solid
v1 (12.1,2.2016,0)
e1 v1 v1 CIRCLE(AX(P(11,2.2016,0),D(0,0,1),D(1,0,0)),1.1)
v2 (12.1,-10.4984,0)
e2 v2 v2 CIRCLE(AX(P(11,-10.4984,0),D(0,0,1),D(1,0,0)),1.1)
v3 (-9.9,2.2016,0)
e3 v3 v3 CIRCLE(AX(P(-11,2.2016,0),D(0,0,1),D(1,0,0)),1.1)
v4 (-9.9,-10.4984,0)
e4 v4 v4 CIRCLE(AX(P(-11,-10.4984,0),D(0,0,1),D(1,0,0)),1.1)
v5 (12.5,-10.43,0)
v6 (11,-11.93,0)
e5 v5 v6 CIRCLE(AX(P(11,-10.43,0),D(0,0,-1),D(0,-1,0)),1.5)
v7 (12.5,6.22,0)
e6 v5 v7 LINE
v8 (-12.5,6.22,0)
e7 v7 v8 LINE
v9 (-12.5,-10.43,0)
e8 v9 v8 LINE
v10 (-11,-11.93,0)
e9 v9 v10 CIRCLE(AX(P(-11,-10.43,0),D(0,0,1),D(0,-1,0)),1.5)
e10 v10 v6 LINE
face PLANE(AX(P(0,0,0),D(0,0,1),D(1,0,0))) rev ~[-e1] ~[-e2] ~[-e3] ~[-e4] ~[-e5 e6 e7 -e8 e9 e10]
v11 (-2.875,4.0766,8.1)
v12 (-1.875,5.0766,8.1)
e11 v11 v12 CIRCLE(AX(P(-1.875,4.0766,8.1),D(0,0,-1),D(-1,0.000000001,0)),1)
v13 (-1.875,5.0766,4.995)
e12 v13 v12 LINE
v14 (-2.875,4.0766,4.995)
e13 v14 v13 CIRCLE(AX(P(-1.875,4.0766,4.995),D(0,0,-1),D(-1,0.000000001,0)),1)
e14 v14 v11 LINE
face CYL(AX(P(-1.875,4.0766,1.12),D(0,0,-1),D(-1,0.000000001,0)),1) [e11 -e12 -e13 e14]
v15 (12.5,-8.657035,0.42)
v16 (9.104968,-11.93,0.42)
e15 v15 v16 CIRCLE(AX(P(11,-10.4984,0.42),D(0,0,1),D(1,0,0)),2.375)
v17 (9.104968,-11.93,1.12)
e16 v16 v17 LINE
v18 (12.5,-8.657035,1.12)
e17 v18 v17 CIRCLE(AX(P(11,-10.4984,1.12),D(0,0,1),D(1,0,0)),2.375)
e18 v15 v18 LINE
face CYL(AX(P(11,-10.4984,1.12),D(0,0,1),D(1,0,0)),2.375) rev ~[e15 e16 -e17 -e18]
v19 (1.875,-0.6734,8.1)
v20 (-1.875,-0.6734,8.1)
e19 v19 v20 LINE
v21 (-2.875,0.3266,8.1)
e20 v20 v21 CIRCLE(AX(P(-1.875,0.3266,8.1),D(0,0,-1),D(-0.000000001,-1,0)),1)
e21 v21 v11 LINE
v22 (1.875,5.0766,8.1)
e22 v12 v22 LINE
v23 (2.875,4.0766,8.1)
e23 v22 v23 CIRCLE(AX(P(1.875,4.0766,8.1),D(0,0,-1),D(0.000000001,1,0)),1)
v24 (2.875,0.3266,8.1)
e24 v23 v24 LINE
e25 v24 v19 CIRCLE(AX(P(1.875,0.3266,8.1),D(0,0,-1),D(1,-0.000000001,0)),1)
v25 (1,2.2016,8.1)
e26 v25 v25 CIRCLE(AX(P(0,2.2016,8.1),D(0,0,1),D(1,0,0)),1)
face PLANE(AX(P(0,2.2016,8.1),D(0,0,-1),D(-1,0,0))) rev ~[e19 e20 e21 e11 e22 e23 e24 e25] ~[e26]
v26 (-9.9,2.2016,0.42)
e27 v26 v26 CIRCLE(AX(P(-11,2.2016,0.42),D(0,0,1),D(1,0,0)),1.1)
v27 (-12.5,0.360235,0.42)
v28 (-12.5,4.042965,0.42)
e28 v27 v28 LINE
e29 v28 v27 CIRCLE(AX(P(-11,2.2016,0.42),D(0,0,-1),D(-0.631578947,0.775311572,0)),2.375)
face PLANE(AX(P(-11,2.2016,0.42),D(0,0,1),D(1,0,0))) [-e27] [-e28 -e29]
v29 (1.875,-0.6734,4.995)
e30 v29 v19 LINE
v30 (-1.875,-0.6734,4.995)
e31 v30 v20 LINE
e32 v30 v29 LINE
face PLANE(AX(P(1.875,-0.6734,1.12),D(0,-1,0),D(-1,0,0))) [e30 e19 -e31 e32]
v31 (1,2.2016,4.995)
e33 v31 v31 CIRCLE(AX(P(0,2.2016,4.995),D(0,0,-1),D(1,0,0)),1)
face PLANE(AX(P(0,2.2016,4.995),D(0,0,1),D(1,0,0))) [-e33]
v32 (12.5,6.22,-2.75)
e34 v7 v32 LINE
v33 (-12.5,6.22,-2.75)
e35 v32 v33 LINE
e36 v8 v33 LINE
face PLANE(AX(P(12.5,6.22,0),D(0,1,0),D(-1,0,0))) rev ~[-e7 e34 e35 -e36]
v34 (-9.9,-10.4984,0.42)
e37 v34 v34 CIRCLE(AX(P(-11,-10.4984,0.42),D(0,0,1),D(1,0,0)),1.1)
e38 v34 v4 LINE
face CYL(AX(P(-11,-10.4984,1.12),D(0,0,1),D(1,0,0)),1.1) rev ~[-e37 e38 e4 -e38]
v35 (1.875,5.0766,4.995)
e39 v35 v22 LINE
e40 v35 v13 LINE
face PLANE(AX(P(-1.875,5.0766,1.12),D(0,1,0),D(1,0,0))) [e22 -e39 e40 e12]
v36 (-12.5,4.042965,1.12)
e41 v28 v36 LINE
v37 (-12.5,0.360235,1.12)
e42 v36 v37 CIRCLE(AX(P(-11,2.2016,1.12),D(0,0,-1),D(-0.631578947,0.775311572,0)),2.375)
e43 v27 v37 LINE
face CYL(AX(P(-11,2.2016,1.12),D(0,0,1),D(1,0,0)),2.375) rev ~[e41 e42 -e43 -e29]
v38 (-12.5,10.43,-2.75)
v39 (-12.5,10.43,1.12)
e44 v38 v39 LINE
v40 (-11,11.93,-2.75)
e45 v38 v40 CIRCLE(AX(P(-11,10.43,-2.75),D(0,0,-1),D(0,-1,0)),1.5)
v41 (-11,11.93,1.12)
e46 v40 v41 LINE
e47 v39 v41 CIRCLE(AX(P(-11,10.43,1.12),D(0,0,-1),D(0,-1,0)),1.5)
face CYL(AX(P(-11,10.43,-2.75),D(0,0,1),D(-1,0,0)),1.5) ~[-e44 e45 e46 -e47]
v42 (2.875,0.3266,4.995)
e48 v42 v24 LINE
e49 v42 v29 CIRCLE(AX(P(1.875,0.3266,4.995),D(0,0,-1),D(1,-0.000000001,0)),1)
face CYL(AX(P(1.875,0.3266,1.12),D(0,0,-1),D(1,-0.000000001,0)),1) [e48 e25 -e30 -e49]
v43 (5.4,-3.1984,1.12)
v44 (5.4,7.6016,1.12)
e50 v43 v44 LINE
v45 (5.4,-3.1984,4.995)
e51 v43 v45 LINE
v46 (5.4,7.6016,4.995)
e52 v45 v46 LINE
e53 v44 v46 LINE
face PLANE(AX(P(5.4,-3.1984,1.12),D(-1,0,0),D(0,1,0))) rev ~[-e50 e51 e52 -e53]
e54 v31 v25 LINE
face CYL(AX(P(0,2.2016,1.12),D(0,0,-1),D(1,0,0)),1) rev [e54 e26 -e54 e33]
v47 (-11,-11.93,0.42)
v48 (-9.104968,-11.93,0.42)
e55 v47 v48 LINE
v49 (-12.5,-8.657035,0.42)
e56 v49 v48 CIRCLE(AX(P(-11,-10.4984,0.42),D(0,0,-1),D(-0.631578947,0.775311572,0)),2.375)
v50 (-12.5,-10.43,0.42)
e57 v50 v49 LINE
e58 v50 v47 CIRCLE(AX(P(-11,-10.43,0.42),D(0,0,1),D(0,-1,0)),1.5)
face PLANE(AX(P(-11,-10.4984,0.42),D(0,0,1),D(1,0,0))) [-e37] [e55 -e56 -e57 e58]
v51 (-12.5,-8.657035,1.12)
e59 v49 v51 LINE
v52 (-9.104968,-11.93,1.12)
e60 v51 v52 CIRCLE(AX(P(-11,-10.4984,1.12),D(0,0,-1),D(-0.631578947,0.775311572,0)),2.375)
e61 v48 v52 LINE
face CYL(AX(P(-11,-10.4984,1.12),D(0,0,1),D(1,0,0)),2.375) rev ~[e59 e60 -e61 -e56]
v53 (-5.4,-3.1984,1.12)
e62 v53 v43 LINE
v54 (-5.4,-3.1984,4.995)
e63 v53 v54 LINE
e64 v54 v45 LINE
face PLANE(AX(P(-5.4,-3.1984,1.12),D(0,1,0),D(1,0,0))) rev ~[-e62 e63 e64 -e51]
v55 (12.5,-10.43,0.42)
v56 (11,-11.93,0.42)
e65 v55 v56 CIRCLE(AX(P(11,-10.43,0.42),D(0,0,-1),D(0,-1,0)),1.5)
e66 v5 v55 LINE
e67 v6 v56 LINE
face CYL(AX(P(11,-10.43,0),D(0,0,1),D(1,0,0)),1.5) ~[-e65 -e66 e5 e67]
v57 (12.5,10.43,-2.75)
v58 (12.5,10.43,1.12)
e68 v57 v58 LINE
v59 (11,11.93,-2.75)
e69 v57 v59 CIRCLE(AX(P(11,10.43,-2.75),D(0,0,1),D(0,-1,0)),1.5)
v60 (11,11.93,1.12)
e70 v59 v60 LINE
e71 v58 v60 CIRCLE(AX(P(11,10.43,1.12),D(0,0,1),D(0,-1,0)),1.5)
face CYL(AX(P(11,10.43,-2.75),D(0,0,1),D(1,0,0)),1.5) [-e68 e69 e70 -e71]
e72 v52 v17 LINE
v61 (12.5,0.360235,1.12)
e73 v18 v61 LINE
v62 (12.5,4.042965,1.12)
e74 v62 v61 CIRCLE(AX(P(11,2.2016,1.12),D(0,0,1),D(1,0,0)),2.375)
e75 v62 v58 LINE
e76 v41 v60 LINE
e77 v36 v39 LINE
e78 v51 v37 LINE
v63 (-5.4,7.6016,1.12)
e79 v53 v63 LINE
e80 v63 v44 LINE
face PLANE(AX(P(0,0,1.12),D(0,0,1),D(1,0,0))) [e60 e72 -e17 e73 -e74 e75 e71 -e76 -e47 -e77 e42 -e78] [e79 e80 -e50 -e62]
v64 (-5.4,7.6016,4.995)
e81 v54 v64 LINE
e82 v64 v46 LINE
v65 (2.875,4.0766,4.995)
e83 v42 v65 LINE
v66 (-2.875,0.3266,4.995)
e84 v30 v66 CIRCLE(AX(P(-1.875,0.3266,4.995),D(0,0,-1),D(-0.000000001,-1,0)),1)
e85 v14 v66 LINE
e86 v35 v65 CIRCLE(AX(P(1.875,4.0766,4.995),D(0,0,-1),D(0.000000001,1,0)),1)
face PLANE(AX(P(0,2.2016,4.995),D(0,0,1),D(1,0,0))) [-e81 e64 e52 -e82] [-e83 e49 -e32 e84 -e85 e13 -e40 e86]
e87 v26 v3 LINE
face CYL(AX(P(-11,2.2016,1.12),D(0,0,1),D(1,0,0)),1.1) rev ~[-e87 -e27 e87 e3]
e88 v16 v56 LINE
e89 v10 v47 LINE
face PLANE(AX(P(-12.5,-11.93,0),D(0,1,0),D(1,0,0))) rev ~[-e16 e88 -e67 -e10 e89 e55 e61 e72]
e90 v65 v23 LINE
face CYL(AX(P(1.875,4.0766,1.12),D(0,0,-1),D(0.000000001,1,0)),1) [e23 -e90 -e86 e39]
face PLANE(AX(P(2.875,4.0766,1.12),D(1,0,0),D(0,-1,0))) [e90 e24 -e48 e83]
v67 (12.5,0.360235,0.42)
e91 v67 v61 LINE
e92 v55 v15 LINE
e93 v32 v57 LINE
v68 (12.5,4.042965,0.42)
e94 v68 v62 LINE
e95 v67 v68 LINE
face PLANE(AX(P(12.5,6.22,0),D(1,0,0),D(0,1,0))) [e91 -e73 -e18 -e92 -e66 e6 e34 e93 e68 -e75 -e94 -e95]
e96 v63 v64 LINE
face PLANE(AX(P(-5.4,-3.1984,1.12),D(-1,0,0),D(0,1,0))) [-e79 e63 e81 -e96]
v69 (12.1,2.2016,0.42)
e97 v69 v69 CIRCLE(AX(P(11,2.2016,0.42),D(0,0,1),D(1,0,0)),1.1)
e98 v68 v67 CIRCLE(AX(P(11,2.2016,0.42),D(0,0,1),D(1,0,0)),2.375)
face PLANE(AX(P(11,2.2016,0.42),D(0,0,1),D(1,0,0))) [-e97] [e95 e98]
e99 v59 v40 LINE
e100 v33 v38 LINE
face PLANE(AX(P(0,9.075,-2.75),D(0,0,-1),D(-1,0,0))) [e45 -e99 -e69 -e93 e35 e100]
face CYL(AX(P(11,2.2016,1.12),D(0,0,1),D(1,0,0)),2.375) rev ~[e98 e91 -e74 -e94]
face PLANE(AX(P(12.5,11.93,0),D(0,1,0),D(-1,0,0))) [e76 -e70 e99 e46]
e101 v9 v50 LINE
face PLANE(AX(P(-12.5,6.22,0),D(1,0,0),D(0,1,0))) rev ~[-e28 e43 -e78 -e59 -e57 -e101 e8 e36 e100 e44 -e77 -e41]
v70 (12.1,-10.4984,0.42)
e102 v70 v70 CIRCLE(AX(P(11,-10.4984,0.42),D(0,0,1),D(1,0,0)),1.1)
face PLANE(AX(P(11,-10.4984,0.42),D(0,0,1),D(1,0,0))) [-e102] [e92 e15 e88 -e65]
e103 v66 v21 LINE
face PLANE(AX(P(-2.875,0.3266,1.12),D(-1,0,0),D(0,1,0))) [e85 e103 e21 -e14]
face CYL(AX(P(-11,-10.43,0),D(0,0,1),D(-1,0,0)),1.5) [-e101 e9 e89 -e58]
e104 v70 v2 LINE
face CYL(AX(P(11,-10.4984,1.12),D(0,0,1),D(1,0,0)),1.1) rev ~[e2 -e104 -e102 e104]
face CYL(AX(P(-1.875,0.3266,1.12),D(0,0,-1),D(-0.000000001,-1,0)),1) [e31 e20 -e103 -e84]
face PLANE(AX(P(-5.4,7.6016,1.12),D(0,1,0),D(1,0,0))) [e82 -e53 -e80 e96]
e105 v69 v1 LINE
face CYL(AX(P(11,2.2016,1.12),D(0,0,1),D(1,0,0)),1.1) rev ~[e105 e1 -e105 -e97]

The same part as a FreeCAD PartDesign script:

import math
import FreeCAD as App
import Part
import Sketcher

V = App.Vector
Q = App.Units.Quantity


def edges_at(feature, points):
    """Names of the edges that pass closest to the given points."""
    edges = feature.Shape.Edges
    near = lambda p: min(range(len(edges)), key=lambda i: edges[i].distToShape(Part.Vertex(*p))[0])
    return sorted({f"Edge{near(p) + 1}" for p in points})


def add_polygon(sketch, points):
    """Adds a closed chain of lines whose ends are joined by coincident constraints."""
    first, n = sketch.GeometryCount, len(points)
    for a, b in zip(points, points[1:] + points[:1]):
        sketch.addGeometry(Part.LineSegment(App.Vector(*a, 0), App.Vector(*b, 0)), False)
    for i in range(n):
        sketch.addConstraint(Sketcher.Constraint("Coincident", first + i, 2, first + (i + 1) % n, 1))

doc = App.newDocument("Part")
body = doc.addObject("PartDesign::Body", "Body")

# Sketch on XY plane
sketch1 = body.newObject("Sketcher::SketchObject", "Sketch")
sketch1.AttachmentSupport = (doc.getObject("XY_Plane"), [""])
sketch1.MapMode = "FlatFace"
add_polygon(sketch1, [(-12, 12), (-12, -12), (12, -12), (12, 12)])  # lines 0-3
sketch1.addConstraint([
    Sketcher.Constraint("Vertical", 0),
    Sketcher.Constraint("Horizontal", 1),
    Sketcher.Constraint("Vertical", 2),
    Sketcher.Constraint("Horizontal", 3),
    Sketcher.Constraint("Symmetric", 0, 2, 2, 2, -1, 1),
    Sketcher.Constraint("DistanceX", 1, 1, 1, 2, Q("25 mm")),
    Sketcher.Constraint("DistanceY", 0, 2, 0, 1, Q("23.86 mm")),
])
pad1 = body.newObject("PartDesign::Pad", "Pad")
pad1.Profile = sketch1
pad1.Length = 1.12

# Sketch on XY plane
sketch2 = body.newObject("Sketcher::SketchObject", "Sketch001")
sketch2.AttachmentSupport = (doc.getObject("XY_Plane"), [""])
sketch2.MapMode = "FlatFace"
sketch2.AttachmentOffset = App.Placement(V(0, 0, 1.12), App.Rotation())
add_polygon(sketch2, [(-5, 8), (-5, -3), (5, -3), (5, 8)])  # lines 0-3
sketch2.addConstraint([
    Sketcher.Constraint("Vertical", 0),
    Sketcher.Constraint("Horizontal", 1),
    Sketcher.Constraint("Vertical", 2),
    Sketcher.Constraint("Horizontal", 3),
    Sketcher.Constraint("Equal", 3, 0),
    Sketcher.Constraint("DistanceX", 1, 1, 1, 2, Q("10.8 mm")),
    Sketcher.Constraint("DistanceX", 0, 2, -1, 1, Q("5.4 mm")),
    Sketcher.Constraint("DistanceY", 0, 2, -1, 1, Q("3.1984 mm")),
])
pad2 = body.newObject("PartDesign::Pad", "Pad001")
pad2.Profile = sketch2
pad2.Length = 3.875

# Sketch on XY plane
sketch3 = body.newObject("Sketcher::SketchObject", "Sketch002")
sketch3.AttachmentSupport = (doc.getObject("XY_Plane"), [""])
sketch3.MapMode = "FlatFace"
sketch3.AttachmentOffset = App.Placement(V(0, 0, 1.12), App.Rotation())
sketch3.addGeometry([
    Part.Circle(V(11, 2.2, 0), V(0, 0, 1), 2.4),
    Part.Circle(V(11, -10.5, 0), V(0, 0, 1), 2.4),
    Part.Circle(V(-11, -10.5, 0), V(0, 0, 1), 2.4),
    Part.Circle(V(-11, 2.2, 0), V(0, 0, 1), 2.4),
], False)
sketch3.addConstraint([
    Sketcher.Constraint("Equal", 0, 1),
    Sketcher.Constraint("Equal", 1, 2),
    Sketcher.Constraint("Equal", 2, 3),
    Sketcher.Constraint("Symmetric", 1, 3, 2, 3, -2),
    Sketcher.Constraint("Symmetric", 0, 3, 3, 3, -2),
    Sketcher.Constraint("Vertical", 0, 3, 1, 3),
    Sketcher.Constraint("Diameter", 0, Q("4.75 mm")),
    Sketcher.Constraint("DistanceX", -1, 1, 0, 3, Q("11 mm")),
    Sketcher.Constraint("DistanceY", 1, 3, 0, 3, Q("12.7 mm")),
    Sketcher.Constraint("DistanceY", -1, 1, 0, 3, Q("2.2016 mm")),
])
pocket1 = body.newObject("PartDesign::Pocket", "Pocket")
pocket1.Profile = sketch3
pocket1.Length = 0.7

# Sketch on XY plane
sketch4 = body.newObject("Sketcher::SketchObject", "Sketch003")
sketch4.AttachmentSupport = (doc.getObject("XY_Plane"), [""])
sketch4.MapMode = "FlatFace"
sketch4.AttachmentOffset = App.Placement(V(0, 0, 1.12), App.Rotation())
sketch4.addGeometry(Part.Circle(V(11, 2.2, 0), V(0, 0, 1), 1.1), False)
sketch4.addConstraint([
    Sketcher.Constraint("Diameter", 0, Q("2.2 mm")),
    Sketcher.Constraint("DistanceX", -1, 1, 0, 3, Q("11 mm")),
    Sketcher.Constraint("DistanceY", -1, 1, 0, 3, Q("2.2016 mm")),
])
pocket2 = body.newObject("PartDesign::Pocket", "Pocket001")
pocket2.Profile = sketch4
pocket2.Length = 1.12

# Sketch on XY plane
sketch5 = body.newObject("Sketcher::SketchObject", "Sketch004")
sketch5.AttachmentSupport = (doc.getObject("XY_Plane"), [""])
sketch5.MapMode = "FlatFace"
sketch5.AttachmentOffset = App.Placement(V(0, 0, 1.12), App.Rotation())
sketch5.addGeometry(Part.Circle(V(11, -10.5, 0), V(0, 0, 1), 1.1), False)
sketch5.addConstraint([
    Sketcher.Constraint("Diameter", 0, Q("2.2 mm")),
    Sketcher.Constraint("DistanceX", -1, 1, 0, 3, Q("11 mm")),
    Sketcher.Constraint("DistanceY", 0, 3, -1, 1, Q("10.4984 mm")),
])
pocket3 = body.newObject("PartDesign::Pocket", "Pocket002")
pocket3.Profile = sketch5
pocket3.Length = 1.12

# Sketch on XY plane
sketch6 = body.newObject("Sketcher::SketchObject", "Sketch005")
sketch6.AttachmentSupport = (doc.getObject("XY_Plane"), [""])
sketch6.MapMode = "FlatFace"
sketch6.AttachmentOffset = App.Placement(V(0, 0, 1.12), App.Rotation())
sketch6.addGeometry(Part.Circle(V(-11, -10.5, 0), V(0, 0, 1), 1.1), False)
sketch6.addConstraint([
    Sketcher.Constraint("Diameter", 0, Q("2.2 mm")),
    Sketcher.Constraint("DistanceX", 0, 3, -1, 1, Q("11 mm")),
    Sketcher.Constraint("DistanceY", 0, 3, -1, 1, Q("10.4984 mm")),
])
pocket4 = body.newObject("PartDesign::Pocket", "Pocket003")
pocket4.Profile = sketch6
pocket4.Length = 1.12

# Sketch on XY plane
sketch7 = body.newObject("Sketcher::SketchObject", "Sketch006")
sketch7.AttachmentSupport = (doc.getObject("XY_Plane"), [""])
sketch7.MapMode = "FlatFace"
sketch7.AttachmentOffset = App.Placement(V(0, 0, 1.12), App.Rotation())
sketch7.addGeometry(Part.Circle(V(-11, 2.2, 0), V(0, 0, 1), 1.1), False)
sketch7.addConstraint([
    Sketcher.Constraint("Diameter", 0, Q("2.2 mm")),
    Sketcher.Constraint("DistanceX", 0, 3, -1, 1, Q("11 mm")),
    Sketcher.Constraint("DistanceY", -1, 1, 0, 3, Q("2.2016 mm")),
])
pocket5 = body.newObject("PartDesign::Pocket", "Pocket004")
pocket5.Profile = sketch7
pocket5.Length = 1.12

# Sketch on XY plane
sketch8 = body.newObject("Sketcher::SketchObject", "Sketch007")
sketch8.AttachmentSupport = (doc.getObject("XY_Plane"), [""])
sketch8.MapMode = "FlatFace"
sketch8.AttachmentOffset = App.Placement(V(0, 0, 1.12), App.Rotation())
sketch8.addGeometry([
    Part.LineSegment(V(2.9, 0.3, 0), V(2.9, 4.1, 0)),  # 0
    Part.ArcOfCircle(Part.Circle(V(1.9, 4.1, 0), V(0, 0, 1), 1), math.radians(0), math.radians(90)),  # 1
    Part.LineSegment(V(1.9, 5.1, 0), V(-1.9, 5.1, 0)),  # 2
    Part.ArcOfCircle(Part.Circle(V(-1.9, 4.1, 0), V(0, 0, 1), 1), math.radians(90), math.radians(180)),  # 3
    Part.LineSegment(V(-2.9, 4.1, 0), V(-2.9, 0.3, 0)),  # 4
    Part.ArcOfCircle(Part.Circle(V(-1.9, 0.3, 0), V(0, 0, 1), 1), math.radians(-180), math.radians(-90)),  # 5
    Part.LineSegment(V(-1.9, -0.7, 0), V(1.9, -0.7, 0)),  # 6
    Part.ArcOfCircle(Part.Circle(V(1.9, 0.3, 0), V(0, 0, 1), 1), math.radians(-90), math.radians(0)),  # 7
    Part.Circle(V(0, 2.2, 0), V(0, 0, 1), 1),  # 8
], False)
sketch8.addConstraint([
    Sketcher.Constraint("Tangent", 0, 2, 1, 1),
    Sketcher.Constraint("Tangent", 1, 2, 2, 1),
    Sketcher.Constraint("Tangent", 2, 2, 3, 1),
    Sketcher.Constraint("Tangent", 3, 2, 4, 1),
    Sketcher.Constraint("Tangent", 4, 2, 5, 1),
    Sketcher.Constraint("Tangent", 5, 2, 6, 1),
    Sketcher.Constraint("Tangent", 6, 2, 7, 1),
    Sketcher.Constraint("Tangent", 7, 2, 0, 1),
    Sketcher.Constraint("Vertical", 0),
    Sketcher.Constraint("Horizontal", 2),
    Sketcher.Constraint("Vertical", 4),
    Sketcher.Constraint("Horizontal", 6),
    Sketcher.Constraint("Equal", 1, 3),
    Sketcher.Constraint("Equal", 3, 5),
    Sketcher.Constraint("Equal", 5, 7),
    Sketcher.Constraint("Equal", 7, 8),
    Sketcher.Constraint("PointOnObject", 8, 3, -2),
    Sketcher.Constraint("Equal", 6, 0),
    Sketcher.Constraint("Diameter", 8, Q("2 mm")),
    Sketcher.Constraint("DistanceX", 2, 2, 2, 1, Q("3.75 mm")),
    Sketcher.Constraint("DistanceX", -1, 1, 1, 3, Q("1.875 mm")),
    Sketcher.Constraint("DistanceY", 8, 3, 1, 3, Q("1.875 mm")),
    Sketcher.Constraint("DistanceY", -1, 1, 1, 3, Q("4.0766 mm")),
])
pad3 = body.newObject("PartDesign::Pad", "Pad002")
pad3.Profile = sketch8
pad3.Length = 6.98

# Sketch on XY plane
sketch9 = body.newObject("Sketcher::SketchObject", "Sketch008")
sketch9.AttachmentSupport = (doc.getObject("XY_Plane"), [""])
sketch9.MapMode = "FlatFace"
add_polygon(sketch9, [(12, 12), (12, 6), (-12, 6), (-12, 12)])  # lines 0-3
sketch9.addConstraint([
    Sketcher.Constraint("Vertical", 0),
    Sketcher.Constraint("Horizontal", 1),
    Sketcher.Constraint("Vertical", 2),
    Sketcher.Constraint("Horizontal", 3),
    Sketcher.Constraint("DistanceX", 1, 2, 1, 1, Q("25 mm")),
    Sketcher.Constraint("DistanceY", 0, 2, 0, 1, Q("5.71 mm")),
    Sketcher.Constraint("DistanceX", -1, 1, 0, 2, Q("12.5 mm")),
    Sketcher.Constraint("DistanceY", -1, 1, 0, 2, Q("6.22 mm")),
])
pad4 = body.newObject("PartDesign::Pad", "Pad003")
pad4.Profile = sketch9
pad4.Length = 2.75
pad4.Reversed = True
doc.recompute()

fillet = body.newObject("PartDesign::Fillet", "Fillet")
fillet.Base = (pad4, edges_at(pad4, [
    (12.5, -11.93, 0.21),
    (-12.5, -11.93, 0.21),
    (12.5, 11.93, -0.815),
    (-12.5, 11.93, -0.815),
]))
fillet.Radius = 1.5

doc.recompute()
